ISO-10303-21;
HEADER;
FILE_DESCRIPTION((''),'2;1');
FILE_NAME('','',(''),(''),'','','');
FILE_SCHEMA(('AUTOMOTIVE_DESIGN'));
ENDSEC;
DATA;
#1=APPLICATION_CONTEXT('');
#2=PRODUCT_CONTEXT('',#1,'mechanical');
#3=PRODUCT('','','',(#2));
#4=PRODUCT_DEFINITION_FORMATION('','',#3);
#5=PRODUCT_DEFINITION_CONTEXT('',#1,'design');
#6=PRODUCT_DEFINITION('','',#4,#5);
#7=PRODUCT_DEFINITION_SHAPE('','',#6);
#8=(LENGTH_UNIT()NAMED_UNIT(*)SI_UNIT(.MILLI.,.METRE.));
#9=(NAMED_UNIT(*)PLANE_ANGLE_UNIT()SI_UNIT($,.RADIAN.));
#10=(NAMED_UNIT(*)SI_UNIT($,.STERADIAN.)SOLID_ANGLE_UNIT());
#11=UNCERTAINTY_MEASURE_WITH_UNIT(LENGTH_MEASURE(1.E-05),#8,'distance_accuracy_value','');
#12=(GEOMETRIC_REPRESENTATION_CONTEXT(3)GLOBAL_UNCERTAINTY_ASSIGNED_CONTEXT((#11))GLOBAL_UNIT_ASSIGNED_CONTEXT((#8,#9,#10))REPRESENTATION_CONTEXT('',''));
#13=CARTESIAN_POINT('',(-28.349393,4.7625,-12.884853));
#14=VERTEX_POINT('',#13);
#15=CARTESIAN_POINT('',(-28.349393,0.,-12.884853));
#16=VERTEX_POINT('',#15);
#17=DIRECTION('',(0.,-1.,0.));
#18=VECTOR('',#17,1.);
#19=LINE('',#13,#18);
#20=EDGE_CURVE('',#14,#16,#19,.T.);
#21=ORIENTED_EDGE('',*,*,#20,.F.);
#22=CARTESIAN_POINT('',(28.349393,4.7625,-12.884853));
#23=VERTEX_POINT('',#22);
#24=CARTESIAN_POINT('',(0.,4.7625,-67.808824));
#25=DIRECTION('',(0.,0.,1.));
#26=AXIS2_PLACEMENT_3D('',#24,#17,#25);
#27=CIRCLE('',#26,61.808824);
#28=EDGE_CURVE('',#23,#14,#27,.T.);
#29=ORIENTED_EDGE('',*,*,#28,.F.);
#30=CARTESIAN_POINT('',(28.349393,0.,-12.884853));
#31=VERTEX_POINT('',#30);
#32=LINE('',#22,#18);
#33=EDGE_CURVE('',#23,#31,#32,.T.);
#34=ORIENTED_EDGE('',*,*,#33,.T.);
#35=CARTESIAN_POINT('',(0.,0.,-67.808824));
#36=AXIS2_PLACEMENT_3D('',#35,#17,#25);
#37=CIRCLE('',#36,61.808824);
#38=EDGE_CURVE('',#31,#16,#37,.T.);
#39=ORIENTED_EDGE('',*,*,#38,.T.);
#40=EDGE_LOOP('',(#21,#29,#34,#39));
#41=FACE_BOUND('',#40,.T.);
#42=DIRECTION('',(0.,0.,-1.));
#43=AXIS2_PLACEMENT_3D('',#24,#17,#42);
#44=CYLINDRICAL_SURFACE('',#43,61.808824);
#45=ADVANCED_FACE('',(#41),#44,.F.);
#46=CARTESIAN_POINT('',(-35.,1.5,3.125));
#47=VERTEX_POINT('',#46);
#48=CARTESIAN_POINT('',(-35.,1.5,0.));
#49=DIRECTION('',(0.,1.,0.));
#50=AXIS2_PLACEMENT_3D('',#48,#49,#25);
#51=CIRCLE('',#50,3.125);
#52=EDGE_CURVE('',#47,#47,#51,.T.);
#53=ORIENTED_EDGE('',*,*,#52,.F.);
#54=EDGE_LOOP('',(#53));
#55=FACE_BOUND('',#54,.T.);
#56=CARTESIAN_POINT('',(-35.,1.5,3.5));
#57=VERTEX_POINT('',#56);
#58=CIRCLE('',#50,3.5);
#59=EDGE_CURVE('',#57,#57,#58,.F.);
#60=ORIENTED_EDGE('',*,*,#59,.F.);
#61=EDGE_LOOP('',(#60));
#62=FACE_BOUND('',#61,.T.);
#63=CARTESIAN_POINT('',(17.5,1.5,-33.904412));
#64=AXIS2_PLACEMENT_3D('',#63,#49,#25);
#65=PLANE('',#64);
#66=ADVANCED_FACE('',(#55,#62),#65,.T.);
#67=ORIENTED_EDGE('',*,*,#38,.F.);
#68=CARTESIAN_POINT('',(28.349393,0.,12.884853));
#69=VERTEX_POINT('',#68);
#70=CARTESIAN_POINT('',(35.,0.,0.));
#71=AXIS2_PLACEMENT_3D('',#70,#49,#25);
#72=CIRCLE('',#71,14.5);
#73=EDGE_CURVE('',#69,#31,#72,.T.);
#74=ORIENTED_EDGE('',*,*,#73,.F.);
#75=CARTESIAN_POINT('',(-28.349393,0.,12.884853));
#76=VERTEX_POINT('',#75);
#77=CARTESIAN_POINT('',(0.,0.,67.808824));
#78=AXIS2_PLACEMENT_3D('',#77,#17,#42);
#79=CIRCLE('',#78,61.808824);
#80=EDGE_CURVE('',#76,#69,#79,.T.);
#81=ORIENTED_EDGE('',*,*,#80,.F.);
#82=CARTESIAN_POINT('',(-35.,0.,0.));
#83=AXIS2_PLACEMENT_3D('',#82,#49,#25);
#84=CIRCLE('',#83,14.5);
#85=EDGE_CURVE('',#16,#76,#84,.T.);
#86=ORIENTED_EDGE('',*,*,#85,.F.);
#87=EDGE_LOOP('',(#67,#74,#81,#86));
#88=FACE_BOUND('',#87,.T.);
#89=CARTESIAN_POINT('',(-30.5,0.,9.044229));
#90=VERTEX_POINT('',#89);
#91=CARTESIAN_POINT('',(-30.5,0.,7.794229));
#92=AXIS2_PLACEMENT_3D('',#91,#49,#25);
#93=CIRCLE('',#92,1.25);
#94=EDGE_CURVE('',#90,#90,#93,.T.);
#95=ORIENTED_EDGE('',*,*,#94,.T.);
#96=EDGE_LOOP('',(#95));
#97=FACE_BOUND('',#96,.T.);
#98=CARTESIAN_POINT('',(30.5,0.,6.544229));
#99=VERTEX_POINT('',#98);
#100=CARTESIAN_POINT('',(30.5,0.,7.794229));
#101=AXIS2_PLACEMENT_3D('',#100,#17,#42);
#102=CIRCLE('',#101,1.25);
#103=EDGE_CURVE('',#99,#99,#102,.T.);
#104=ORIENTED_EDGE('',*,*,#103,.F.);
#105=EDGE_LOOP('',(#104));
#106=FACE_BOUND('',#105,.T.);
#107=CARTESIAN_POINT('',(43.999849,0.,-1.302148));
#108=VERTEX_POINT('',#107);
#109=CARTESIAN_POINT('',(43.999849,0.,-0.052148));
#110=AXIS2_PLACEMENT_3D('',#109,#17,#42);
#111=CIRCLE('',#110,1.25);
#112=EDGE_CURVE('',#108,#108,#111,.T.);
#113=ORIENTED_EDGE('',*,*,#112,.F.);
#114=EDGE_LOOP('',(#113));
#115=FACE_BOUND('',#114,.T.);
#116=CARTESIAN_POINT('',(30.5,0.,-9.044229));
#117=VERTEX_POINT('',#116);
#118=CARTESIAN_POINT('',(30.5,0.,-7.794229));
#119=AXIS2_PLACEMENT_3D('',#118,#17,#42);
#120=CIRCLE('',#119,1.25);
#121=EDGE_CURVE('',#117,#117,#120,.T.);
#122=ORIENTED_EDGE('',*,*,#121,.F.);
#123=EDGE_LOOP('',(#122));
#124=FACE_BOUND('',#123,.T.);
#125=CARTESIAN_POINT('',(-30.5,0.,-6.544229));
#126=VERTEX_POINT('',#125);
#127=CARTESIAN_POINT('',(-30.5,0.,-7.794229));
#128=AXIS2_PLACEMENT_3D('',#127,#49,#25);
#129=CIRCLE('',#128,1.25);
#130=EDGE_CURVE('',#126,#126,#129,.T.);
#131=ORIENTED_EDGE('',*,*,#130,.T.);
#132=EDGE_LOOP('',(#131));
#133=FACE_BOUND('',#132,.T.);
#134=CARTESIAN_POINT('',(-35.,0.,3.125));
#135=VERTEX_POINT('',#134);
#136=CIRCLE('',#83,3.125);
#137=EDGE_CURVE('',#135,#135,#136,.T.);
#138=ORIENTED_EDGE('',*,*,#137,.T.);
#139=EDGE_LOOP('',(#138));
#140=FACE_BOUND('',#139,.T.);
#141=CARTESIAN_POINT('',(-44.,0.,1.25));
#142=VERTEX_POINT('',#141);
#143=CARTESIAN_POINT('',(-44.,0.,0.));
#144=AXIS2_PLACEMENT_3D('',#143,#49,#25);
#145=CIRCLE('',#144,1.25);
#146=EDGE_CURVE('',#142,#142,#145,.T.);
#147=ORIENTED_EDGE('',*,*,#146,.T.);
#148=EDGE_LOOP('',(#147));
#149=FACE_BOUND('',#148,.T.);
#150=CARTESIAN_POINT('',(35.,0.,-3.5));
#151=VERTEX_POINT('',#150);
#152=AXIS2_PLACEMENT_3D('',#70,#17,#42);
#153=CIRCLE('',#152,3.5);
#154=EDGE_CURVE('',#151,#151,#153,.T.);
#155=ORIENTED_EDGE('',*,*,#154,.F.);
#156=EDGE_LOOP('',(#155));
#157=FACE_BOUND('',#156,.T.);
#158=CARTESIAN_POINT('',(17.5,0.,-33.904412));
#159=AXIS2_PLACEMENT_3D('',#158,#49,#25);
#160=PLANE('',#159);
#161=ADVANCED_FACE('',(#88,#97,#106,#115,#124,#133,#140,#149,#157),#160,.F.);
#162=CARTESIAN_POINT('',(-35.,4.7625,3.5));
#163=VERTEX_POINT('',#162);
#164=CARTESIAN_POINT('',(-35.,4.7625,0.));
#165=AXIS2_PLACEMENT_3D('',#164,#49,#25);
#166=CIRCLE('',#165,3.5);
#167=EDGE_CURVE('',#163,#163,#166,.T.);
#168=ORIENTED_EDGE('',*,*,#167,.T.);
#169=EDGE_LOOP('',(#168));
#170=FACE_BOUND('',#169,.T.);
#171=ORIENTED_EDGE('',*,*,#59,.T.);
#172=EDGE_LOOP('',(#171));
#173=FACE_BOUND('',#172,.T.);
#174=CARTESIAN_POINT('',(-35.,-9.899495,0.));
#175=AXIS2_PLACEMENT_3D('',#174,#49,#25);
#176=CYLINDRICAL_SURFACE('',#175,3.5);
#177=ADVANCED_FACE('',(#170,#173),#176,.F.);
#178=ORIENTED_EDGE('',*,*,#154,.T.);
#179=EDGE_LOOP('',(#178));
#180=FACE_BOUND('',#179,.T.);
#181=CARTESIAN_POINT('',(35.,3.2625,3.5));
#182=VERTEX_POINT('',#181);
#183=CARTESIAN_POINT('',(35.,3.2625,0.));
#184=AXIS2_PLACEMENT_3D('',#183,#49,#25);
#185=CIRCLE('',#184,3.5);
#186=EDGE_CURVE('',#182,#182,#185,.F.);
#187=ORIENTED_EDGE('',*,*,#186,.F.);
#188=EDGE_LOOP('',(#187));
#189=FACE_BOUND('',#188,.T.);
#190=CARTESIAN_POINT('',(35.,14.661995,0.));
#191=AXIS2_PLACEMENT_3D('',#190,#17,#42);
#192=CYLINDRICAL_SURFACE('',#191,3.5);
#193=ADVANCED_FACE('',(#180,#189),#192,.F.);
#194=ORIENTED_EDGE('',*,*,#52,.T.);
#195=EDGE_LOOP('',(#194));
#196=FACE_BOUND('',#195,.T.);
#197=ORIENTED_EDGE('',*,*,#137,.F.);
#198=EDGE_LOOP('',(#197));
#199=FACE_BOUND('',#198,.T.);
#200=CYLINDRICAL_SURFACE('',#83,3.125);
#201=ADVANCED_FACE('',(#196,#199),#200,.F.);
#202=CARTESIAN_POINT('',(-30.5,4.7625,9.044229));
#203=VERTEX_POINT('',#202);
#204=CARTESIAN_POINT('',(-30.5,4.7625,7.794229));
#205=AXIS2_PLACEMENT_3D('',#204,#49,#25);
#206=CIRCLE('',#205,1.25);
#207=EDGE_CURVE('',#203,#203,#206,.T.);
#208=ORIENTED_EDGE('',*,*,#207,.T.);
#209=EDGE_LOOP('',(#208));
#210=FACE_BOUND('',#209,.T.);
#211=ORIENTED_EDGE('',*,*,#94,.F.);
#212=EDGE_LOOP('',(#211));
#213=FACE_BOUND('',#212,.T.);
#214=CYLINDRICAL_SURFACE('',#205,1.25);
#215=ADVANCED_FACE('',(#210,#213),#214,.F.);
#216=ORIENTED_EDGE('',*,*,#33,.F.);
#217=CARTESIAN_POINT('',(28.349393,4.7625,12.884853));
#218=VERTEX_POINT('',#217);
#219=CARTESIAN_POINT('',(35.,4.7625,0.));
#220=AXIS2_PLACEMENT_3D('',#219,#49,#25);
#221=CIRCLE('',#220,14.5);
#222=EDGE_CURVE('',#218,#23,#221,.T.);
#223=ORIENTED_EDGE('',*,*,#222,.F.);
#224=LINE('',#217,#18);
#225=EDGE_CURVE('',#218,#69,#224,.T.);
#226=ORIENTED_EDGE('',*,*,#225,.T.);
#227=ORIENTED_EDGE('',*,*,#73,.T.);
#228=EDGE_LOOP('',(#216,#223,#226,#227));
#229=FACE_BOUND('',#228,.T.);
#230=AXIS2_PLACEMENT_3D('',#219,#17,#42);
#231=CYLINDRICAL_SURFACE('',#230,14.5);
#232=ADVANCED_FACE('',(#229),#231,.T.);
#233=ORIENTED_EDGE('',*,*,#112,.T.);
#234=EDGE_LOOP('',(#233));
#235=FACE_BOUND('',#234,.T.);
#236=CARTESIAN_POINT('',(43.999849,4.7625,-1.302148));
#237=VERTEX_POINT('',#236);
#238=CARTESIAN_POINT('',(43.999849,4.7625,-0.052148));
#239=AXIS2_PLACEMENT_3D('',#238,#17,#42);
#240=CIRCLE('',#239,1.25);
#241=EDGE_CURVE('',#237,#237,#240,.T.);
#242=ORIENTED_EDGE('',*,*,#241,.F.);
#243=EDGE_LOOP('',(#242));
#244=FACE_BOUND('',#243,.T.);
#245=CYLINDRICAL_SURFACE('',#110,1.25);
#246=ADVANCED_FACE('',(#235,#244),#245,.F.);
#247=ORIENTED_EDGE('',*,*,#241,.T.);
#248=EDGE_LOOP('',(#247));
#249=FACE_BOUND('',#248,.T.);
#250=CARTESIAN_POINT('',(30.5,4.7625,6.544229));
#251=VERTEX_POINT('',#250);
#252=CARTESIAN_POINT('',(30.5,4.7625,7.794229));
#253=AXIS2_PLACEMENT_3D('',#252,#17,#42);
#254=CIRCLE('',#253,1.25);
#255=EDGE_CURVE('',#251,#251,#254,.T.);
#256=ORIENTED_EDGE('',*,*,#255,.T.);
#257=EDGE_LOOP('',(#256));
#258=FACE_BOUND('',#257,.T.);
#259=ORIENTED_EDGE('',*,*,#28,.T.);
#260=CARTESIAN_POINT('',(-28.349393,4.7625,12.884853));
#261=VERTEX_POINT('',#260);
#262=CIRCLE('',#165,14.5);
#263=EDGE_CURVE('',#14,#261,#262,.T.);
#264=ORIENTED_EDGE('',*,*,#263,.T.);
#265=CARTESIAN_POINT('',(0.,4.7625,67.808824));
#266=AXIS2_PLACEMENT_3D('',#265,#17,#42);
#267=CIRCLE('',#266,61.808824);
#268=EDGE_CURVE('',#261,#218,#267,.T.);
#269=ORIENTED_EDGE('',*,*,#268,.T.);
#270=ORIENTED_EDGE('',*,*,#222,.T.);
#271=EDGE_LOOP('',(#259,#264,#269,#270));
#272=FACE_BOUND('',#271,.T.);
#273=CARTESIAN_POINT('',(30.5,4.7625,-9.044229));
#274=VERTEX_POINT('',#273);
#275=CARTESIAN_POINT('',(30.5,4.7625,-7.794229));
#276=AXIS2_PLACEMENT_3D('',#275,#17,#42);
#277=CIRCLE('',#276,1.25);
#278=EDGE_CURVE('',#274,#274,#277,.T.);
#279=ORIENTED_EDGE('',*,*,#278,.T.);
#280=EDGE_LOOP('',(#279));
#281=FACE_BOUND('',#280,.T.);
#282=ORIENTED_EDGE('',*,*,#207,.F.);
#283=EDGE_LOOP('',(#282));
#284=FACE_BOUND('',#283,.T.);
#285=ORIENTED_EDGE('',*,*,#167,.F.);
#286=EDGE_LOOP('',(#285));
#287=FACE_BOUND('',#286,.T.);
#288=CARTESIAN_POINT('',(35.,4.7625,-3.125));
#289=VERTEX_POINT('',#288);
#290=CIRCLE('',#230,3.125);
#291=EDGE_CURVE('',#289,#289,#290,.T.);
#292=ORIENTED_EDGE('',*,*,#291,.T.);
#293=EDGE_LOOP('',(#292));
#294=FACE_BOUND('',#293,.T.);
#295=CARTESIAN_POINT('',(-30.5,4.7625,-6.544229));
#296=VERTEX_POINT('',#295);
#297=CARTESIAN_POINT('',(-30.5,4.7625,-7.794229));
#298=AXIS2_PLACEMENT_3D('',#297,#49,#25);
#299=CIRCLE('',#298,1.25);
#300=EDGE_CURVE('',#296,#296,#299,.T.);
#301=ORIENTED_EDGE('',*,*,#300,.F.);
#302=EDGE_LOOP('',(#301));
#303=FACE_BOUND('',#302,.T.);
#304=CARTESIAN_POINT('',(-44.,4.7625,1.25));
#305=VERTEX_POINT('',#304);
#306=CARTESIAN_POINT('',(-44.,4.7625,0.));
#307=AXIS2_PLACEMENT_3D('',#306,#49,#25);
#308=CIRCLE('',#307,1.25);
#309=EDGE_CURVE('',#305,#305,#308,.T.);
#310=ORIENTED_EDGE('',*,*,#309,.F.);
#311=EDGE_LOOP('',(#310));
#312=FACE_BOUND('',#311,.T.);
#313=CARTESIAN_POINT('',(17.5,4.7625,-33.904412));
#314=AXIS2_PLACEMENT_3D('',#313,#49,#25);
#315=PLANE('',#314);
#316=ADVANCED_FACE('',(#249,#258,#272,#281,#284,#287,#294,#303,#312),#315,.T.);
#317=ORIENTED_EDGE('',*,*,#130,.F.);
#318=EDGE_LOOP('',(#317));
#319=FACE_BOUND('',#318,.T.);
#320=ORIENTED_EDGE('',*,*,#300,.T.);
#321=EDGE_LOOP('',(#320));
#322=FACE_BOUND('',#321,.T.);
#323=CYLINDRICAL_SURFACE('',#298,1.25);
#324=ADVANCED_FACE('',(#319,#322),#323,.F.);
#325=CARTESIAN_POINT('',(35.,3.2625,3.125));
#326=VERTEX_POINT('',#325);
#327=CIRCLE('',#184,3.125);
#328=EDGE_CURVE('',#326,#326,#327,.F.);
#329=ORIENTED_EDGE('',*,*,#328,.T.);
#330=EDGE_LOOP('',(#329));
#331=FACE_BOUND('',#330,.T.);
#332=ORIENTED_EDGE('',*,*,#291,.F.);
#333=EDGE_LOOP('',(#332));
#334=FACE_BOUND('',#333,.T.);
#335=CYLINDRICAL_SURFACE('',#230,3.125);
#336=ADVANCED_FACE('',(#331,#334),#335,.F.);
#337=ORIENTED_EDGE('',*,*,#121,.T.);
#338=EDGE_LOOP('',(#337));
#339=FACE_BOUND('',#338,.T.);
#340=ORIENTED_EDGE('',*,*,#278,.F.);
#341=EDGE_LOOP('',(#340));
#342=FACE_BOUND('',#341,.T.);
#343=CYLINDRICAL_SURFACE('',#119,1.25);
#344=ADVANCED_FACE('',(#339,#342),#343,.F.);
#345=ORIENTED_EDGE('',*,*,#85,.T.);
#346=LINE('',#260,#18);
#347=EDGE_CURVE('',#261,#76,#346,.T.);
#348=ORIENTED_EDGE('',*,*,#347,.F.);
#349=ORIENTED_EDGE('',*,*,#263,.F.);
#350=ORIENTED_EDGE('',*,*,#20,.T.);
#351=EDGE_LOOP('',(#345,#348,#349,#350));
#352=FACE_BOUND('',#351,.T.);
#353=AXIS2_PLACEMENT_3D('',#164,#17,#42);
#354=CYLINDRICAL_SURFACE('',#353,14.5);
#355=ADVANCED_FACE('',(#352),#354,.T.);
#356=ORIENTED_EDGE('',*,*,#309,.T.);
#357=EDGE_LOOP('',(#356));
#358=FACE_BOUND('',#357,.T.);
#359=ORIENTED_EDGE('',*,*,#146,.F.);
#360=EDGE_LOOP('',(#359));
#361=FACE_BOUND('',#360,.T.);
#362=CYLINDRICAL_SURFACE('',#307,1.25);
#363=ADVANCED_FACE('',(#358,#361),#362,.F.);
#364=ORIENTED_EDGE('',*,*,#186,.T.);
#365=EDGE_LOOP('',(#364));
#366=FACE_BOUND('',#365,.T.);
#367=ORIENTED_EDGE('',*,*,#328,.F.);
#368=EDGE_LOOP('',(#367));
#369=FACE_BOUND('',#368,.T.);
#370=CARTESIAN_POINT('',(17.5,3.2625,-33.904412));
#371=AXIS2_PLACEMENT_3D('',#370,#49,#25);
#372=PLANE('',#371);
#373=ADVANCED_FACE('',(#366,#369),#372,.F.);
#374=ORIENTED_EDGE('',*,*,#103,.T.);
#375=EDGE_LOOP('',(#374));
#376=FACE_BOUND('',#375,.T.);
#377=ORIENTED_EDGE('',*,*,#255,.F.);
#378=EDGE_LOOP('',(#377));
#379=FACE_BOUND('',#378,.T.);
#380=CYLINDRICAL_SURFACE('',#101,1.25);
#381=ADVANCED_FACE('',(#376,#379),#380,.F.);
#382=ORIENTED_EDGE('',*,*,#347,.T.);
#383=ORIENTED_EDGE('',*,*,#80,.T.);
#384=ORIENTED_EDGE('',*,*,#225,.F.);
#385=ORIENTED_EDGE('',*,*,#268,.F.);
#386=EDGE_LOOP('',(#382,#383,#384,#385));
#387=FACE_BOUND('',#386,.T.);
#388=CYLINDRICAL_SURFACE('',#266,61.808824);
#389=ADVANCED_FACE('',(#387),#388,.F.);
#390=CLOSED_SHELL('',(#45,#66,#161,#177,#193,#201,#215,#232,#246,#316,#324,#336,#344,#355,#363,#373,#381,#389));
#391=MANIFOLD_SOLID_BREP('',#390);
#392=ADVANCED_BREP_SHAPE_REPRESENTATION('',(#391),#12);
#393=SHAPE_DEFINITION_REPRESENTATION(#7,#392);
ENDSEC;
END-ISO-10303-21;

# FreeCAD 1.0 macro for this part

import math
import FreeCAD as App
import Part
import Sketcher

V = App.Vector
Q = App.Units.Quantity

doc = App.newDocument("Part")
body = doc.addObject("PartDesign::Body", "Body")

sketch1 = body.newObject("Sketcher::SketchObject", "Sketch")
sketch1.AttachmentSupport = (doc.getObject("XZ_Plane"), [""])
sketch1.MapMode = "FlatFace"
sketch1.addGeometry(Part.ArcOfCircle(Part.Circle(V(-35, 0, 0), V(0, 0, 1), 14), math.radians(63), math.radians(297)), False)
sketch1.addGeometry(Part.ArcOfCircle(Part.Circle(V(0, 68, 0), V(0, 0, 1), 62), math.radians(-117), math.radians(-63)), False)
sketch1.addGeometry(Part.ArcOfCircle(Part.Circle(V(35, 0, 0), V(0, 0, 1), 14), math.radians(-117), math.radians(117)), False)
sketch1.addGeometry(Part.ArcOfCircle(Part.Circle(V(0, -68, 0), V(0, 0, 1), 62), math.radians(63), math.radians(117)), False)
sketch1.addConstraint(Sketcher.Constraint("Tangent", 0, 1, 1, 1))
sketch1.addConstraint(Sketcher.Constraint("Tangent", 1, 2, 2, 2))
sketch1.addConstraint(Sketcher.Constraint("Tangent", 2, 1, 3, 1))
sketch1.addConstraint(Sketcher.Constraint("Tangent", 3, 2, 0, 2))
sketch1.addConstraint(Sketcher.Constraint("Equal", 0, 2))
sketch1.addConstraint(Sketcher.Constraint("Equal", 1, 3))
sketch1.addConstraint(Sketcher.Constraint("Symmetric", 0, 3, 2, 3, -1, 1))
sketch1.addConstraint(Sketcher.Constraint("PointOnObject", 0, 3, -1))
sketch1.addConstraint(Sketcher.Constraint("Radius", 0, Q("14.5 mm")))
sketch1.addConstraint(Sketcher.Constraint("DistanceX", 0, 3, -1, 1, Q("35 mm")))
sketch1.addConstraint(Sketcher.Constraint("Radius", 1, Q("61.808824 mm")))
pad1 = body.newObject("PartDesign::Pad", "Pad")
pad1.Profile = sketch1
pad1.Length = 4.7625
pad1.Reversed = True

sketch2 = body.newObject("Sketcher::SketchObject", "Sketch001")
sketch2.AttachmentSupport = (doc.getObject("XZ_Plane"), [""])
sketch2.MapMode = "FlatFace"
sketch2.AttachmentOffset = App.Placement(V(0, 0, -4.7625), App.Rotation())
sketch2.addGeometry(Part.Circle(V(-35, 0, 0), V(0, 0, 1), 3.5), False)
sketch2.addConstraint(Sketcher.Constraint("PointOnObject", 0, 3, -1))
sketch2.addConstraint(Sketcher.Constraint("Diameter", 0, Q("7 mm")))
sketch2.addConstraint(Sketcher.Constraint("DistanceX", 0, 3, -1, 1, Q("35 mm")))
pocket1 = body.newObject("PartDesign::Pocket", "Pocket")
pocket1.Profile = sketch2
pocket1.Length = 3.2625
pocket1.Reversed = True

sketch3 = body.newObject("Sketcher::SketchObject", "Sketch002")
sketch3.AttachmentSupport = (doc.getObject("XZ_Plane"), [""])
sketch3.MapMode = "FlatFace"
sketch3.AttachmentOffset = App.Placement(V(0, 0, -1.5), App.Rotation())
sketch3.addGeometry(Part.Circle(V(-35, 0, 0), V(0, 0, 1), 3.1), False)
sketch3.addConstraint(Sketcher.Constraint("PointOnObject", 0, 3, -1))
sketch3.addConstraint(Sketcher.Constraint("Diameter", 0, Q("6.25 mm")))
sketch3.addConstraint(Sketcher.Constraint("DistanceX", 0, 3, -1, 1, Q("35 mm")))
pocket2 = body.newObject("PartDesign::Pocket", "Pocket001")
pocket2.Profile = sketch3
pocket2.Type = "ThroughAll"
pocket2.Reversed = True

sketch4 = body.newObject("Sketcher::SketchObject", "Sketch003")
sketch4.AttachmentSupport = (doc.getObject("XZ_Plane"), [""])
sketch4.MapMode = "FlatFace"
sketch4.addGeometry(Part.Circle(V(35, 0, 0), V(0, 0, 1), 3.1), False)
sketch4.addConstraint(Sketcher.Constraint("PointOnObject", 0, 3, -1))
sketch4.addConstraint(Sketcher.Constraint("Diameter", 0, Q("6.25 mm")))
sketch4.addConstraint(Sketcher.Constraint("DistanceX", -1, 1, 0, 3, Q("35 mm")))
pocket3 = body.newObject("PartDesign::Pocket", "Pocket002")
pocket3.Profile = sketch4
pocket3.Type = "ThroughAll"

sketch5 = body.newObject("Sketcher::SketchObject", "Sketch004")
sketch5.AttachmentSupport = (doc.getObject("XZ_Plane"), [""])
sketch5.MapMode = "FlatFace"
sketch5.addGeometry(Part.Circle(V(35, 0, 0), V(0, 0, 1), 3.5), False)
sketch5.addConstraint(Sketcher.Constraint("PointOnObject", 0, 3, -1))
sketch5.addConstraint(Sketcher.Constraint("Diameter", 0, Q("7 mm")))
sketch5.addConstraint(Sketcher.Constraint("DistanceX", -1, 1, 0, 3, Q("35 mm")))
pocket4 = body.newObject("PartDesign::Pocket", "Pocket003")
pocket4.Profile = sketch5
pocket4.Length = 3.2625

sketch6 = body.newObject("Sketcher::SketchObject", "Sketch005")
sketch6.AttachmentSupport = (doc.getObject("XZ_Plane"), [""])
sketch6.MapMode = "FlatFace"
sketch6.AttachmentOffset = App.Placement(V(0, 0, -4.7625), App.Rotation())
sketch6.addGeometry(Part.Circle(V(-30.5, 7.8, 0), V(0, 0, 1), 1.2), False)
sketch6.addGeometry(Part.Circle(V(-44, 0, 0), V(0, 0, 1), 1.2), False)
sketch6.addGeometry(Part.Circle(V(-30.5, -7.8, 0), V(0, 0, 1), 1.2), False)
sketch6.addConstraint(Sketcher.Constraint("Equal", 0, 1))
sketch6.addConstraint(Sketcher.Constraint("Equal", 1, 2))
sketch6.addConstraint(Sketcher.Constraint("Symmetric", 0, 3, 2, 3, -1))
sketch6.addConstraint(Sketcher.Constraint("PointOnObject", 1, 3, -1))
sketch6.addConstraint(Sketcher.Constraint("Diameter", 0, Q("2.5 mm")))
sketch6.addConstraint(Sketcher.Constraint("DistanceX", 1, 3, -1, 1, Q("44 mm")))
sketch6.addConstraint(Sketcher.Constraint("DistanceX", 0, 3, -1, 1, Q("30.5 mm")))
sketch6.addConstraint(Sketcher.Constraint("DistanceY", -1, 1, 0, 3, Q("7.794229 mm")))
doc.recompute()
hole = body.newObject("PartDesign::Hole", "Hole")
hole.Profile = sketch6
hole.ThreadType = "None"
hole.Diameter = 2.5
hole.DepthType = "ThroughAll"
hole.Reversed = True

sketch7 = body.newObject("Sketcher::SketchObject", "Sketch006")
sketch7.AttachmentSupport = (doc.getObject("XZ_Plane"), [""])
sketch7.MapMode = "FlatFace"
sketch7.addGeometry(Part.Circle(V(44, -0.1, 0), V(0, 0, 1), 1.2), False)
sketch7.addGeometry(Part.Circle(V(30.5, 7.8, 0), V(0, 0, 1), 1.2), False)
sketch7.addGeometry(Part.Circle(V(30.5, -7.8, 0), V(0, 0, 1), 1.2), False)
sketch7.addConstraint(Sketcher.Constraint("Equal", 0, 1))
sketch7.addConstraint(Sketcher.Constraint("Equal", 1, 2))
sketch7.addConstraint(Sketcher.Constraint("Symmetric", 1, 3, 2, 3, -1))
sketch7.addConstraint(Sketcher.Constraint("Diameter", 0, Q("2.5 mm")))
sketch7.addConstraint(Sketcher.Constraint("DistanceX", -1, 1, 1, 3, Q("30.5 mm")))
sketch7.addConstraint(Sketcher.Constraint("DistanceX", -1, 1, 0, 3, Q("43.999849 mm")))
sketch7.addConstraint(Sketcher.Constraint("DistanceY", -1, 1, 1, 3, Q("7.794229 mm")))
sketch7.addConstraint(Sketcher.Constraint("DistanceY", 2, 3, 0, 3, Q("7.742081 mm")))
doc.recompute()
hole2 = body.newObject("PartDesign::Hole", "Hole001")
hole2.Profile = sketch7
hole2.ThreadType = "None"
hole2.Diameter = 2.5
hole2.DepthType = "ThroughAll"

doc.recompute()
